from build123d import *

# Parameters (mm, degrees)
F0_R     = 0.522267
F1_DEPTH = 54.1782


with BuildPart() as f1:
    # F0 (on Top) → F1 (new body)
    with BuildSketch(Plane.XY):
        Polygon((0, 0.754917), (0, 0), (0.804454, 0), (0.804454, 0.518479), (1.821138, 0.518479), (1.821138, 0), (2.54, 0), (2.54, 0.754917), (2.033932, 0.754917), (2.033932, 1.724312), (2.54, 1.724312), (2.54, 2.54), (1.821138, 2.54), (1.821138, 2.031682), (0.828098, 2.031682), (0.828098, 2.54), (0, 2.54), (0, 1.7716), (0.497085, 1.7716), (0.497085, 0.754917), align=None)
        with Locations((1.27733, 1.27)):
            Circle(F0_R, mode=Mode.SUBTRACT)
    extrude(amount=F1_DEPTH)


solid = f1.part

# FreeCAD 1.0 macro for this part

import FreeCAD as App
import Part
import Sketcher
from FreeCAD import Vector
Q = App.Units.Quantity

doc = App.newDocument("Part")
body = doc.addObject("PartDesign::Body", "Body")

sketch1 = body.newObject("Sketcher::SketchObject", "Sketch")
sketch1.AttachmentSupport = (doc.getObject("XY_Plane"), [""])
sketch1.MapMode = "FlatFace"
sketch1.addGeometry([
    Part.LineSegment(Vector(0, 0.75, 0), Vector(0, 0, 0)),
    Part.LineSegment(Vector(0, 0, 0), Vector(0.8, 0, 0)),
    Part.LineSegment(Vector(0.8, 0, 0), Vector(0.8, 0.52, 0)),
    Part.LineSegment(Vector(0.8, 0.52, 0), Vector(1.82, 0.52, 0)),
    Part.LineSegment(Vector(1.82, 0.52, 0), Vector(1.82, 0, 0)),
    Part.LineSegment(Vector(1.82, 0, 0), Vector(2.54, 0, 0)),
    Part.LineSegment(Vector(2.54, 0, 0), Vector(2.54, 0.75, 0)),
    Part.LineSegment(Vector(2.54, 0.75, 0), Vector(2.03, 0.75, 0)),
    Part.LineSegment(Vector(2.03, 0.75, 0), Vector(2.03, 1.72, 0)),
    Part.LineSegment(Vector(2.03, 1.72, 0), Vector(2.54, 1.72, 0)),
    Part.LineSegment(Vector(2.54, 1.72, 0), Vector(2.54, 2.54, 0)),
    Part.LineSegment(Vector(2.54, 2.54, 0), Vector(1.82, 2.54, 0)),
    Part.LineSegment(Vector(1.82, 2.54, 0), Vector(1.82, 2.03, 0)),
    Part.LineSegment(Vector(1.82, 2.03, 0), Vector(0.83, 2.03, 0)),
    Part.LineSegment(Vector(0.83, 2.03, 0), Vector(0.83, 2.54, 0)),
    Part.LineSegment(Vector(0.83, 2.54, 0), Vector(0, 2.54, 0)),
    Part.LineSegment(Vector(0, 2.54, 0), Vector(0, 1.77, 0)),
    Part.LineSegment(Vector(0, 1.77, 0), Vector(0.5, 1.77, 0)),
    Part.LineSegment(Vector(0.5, 1.77, 0), Vector(0.5, 0.75, 0)),
    Part.LineSegment(Vector(0.5, 0.75, 0), Vector(0, 0.75, 0)),
    Part.Circle(Vector(1.28, 1.27, 0), Vector(0, 0, 1), 0.52),
], False)
sketch1.addConstraint([
    Sketcher.Constraint("Coincident", 0, 2, 1, 1),
    Sketcher.Constraint("Coincident", 1, 2, 2, 1),
    Sketcher.Constraint("Coincident", 2, 2, 3, 1),
    Sketcher.Constraint("Coincident", 3, 2, 4, 1),
    Sketcher.Constraint("Coincident", 4, 2, 5, 1),
    Sketcher.Constraint("Coincident", 5, 2, 6, 1),
    Sketcher.Constraint("Coincident", 6, 2, 7, 1),
    Sketcher.Constraint("Coincident", 7, 2, 8, 1),
    Sketcher.Constraint("Coincident", 8, 2, 9, 1),
    Sketcher.Constraint("Coincident", 9, 2, 10, 1),
    Sketcher.Constraint("Coincident", 10, 2, 11, 1),
    Sketcher.Constraint("Coincident", 11, 2, 12, 1),
    Sketcher.Constraint("Coincident", 12, 2, 13, 1),
    Sketcher.Constraint("Coincident", 13, 2, 14, 1),
    Sketcher.Constraint("Coincident", 14, 2, 15, 1),
    Sketcher.Constraint("Coincident", 15, 2, 16, 1),
    Sketcher.Constraint("Coincident", 16, 2, 17, 1),
    Sketcher.Constraint("Coincident", 17, 2, 18, 1),
    Sketcher.Constraint("Coincident", 18, 2, 19, 1),
    Sketcher.Constraint("Coincident", 19, 2, 0, 1),
    Sketcher.Constraint("Vertical", 0),
    Sketcher.Constraint("Horizontal", 1),
    Sketcher.Constraint("Vertical", 2),
    Sketcher.Constraint("Horizontal", 3),
    Sketcher.Constraint("Vertical", 4),
    Sketcher.Constraint("Horizontal", 5),
    Sketcher.Constraint("Vertical", 6),
    Sketcher.Constraint("Horizontal", 7),
    Sketcher.Constraint("Vertical", 8),
    Sketcher.Constraint("Horizontal", 9),
    Sketcher.Constraint("Vertical", 10),
    Sketcher.Constraint("Horizontal", 11),
    Sketcher.Constraint("Vertical", 12),
    Sketcher.Constraint("Horizontal", 13),
    Sketcher.Constraint("Vertical", 14),
    Sketcher.Constraint("Horizontal", 15),
    Sketcher.Constraint("Vertical", 16),
    Sketcher.Constraint("Horizontal", 17),
    Sketcher.Constraint("Vertical", 18),
    Sketcher.Constraint("Horizontal", 19),
    Sketcher.Constraint("Coincident", 0, 2, -1, 1),
    Sketcher.Constraint("PointOnObject", 4, 2, -1),
    Sketcher.Constraint("PointOnObject", 15, 2, -2),
    Sketcher.Constraint("Horizontal", 11, 2, 14, 2),
    Sketcher.Constraint("Horizontal", 7, 2, 18, 2),
    Sketcher.Constraint("Vertical", 6, 2, 9, 2),
    Sketcher.Constraint("Vertical", 4, 2, 11, 2),
    Sketcher.Constraint("Equal", 3, 18),
    Sketcher.Constraint("DistanceX", -1, 1, 5, 2, Q("0.1 in")),
    Sketcher.Constraint("DistanceY", -1, 1, 10, 2, Q("0.1 in")),
    Sketcher.Constraint("DistanceY", -1, 1, 20, 3, Q("0.05 in")),
    Sketcher.Constraint("Diameter", 20, Q("1.044534 mm")),
    Sketcher.Constraint("DistanceX", 15, 2, 15, 1, Q("0.828098 mm")),
    Sketcher.Constraint("DistanceY", 16, 2, 16, 1, Q("0.7684 mm")),
    Sketcher.Constraint("DistanceX", 13, 2, 13, 1, Q("0.99304 mm")),
    Sketcher.Constraint("DistanceY", 2, 1, 2, 2, Q("0.518479 mm")),
    Sketcher.Constraint("DistanceY", 12, 2, 12, 1, Q("0.508318 mm")),
    Sketcher.Constraint("DistanceX", 20, 3, 7, 2, Q("0.756602 mm")),
    Sketcher.Constraint("DistanceX", 1, 1, 1, 2, Q("0.804454 mm")),
    Sketcher.Constraint("DistanceX", 7, 2, 7, 1, Q("0.506068 mm")),
    Sketcher.Constraint("DistanceX", 17, 1, 17, 2, Q("0.497085 mm")),
    Sketcher.Constraint("DistanceY", 8, 1, 8, 2, Q("0.969395 mm")),
])
pad1 = body.newObject("PartDesign::Pad", "Pad")
pad1.Profile = sketch1
pad1.Length = Q("2.133 in")

doc.recompute()
